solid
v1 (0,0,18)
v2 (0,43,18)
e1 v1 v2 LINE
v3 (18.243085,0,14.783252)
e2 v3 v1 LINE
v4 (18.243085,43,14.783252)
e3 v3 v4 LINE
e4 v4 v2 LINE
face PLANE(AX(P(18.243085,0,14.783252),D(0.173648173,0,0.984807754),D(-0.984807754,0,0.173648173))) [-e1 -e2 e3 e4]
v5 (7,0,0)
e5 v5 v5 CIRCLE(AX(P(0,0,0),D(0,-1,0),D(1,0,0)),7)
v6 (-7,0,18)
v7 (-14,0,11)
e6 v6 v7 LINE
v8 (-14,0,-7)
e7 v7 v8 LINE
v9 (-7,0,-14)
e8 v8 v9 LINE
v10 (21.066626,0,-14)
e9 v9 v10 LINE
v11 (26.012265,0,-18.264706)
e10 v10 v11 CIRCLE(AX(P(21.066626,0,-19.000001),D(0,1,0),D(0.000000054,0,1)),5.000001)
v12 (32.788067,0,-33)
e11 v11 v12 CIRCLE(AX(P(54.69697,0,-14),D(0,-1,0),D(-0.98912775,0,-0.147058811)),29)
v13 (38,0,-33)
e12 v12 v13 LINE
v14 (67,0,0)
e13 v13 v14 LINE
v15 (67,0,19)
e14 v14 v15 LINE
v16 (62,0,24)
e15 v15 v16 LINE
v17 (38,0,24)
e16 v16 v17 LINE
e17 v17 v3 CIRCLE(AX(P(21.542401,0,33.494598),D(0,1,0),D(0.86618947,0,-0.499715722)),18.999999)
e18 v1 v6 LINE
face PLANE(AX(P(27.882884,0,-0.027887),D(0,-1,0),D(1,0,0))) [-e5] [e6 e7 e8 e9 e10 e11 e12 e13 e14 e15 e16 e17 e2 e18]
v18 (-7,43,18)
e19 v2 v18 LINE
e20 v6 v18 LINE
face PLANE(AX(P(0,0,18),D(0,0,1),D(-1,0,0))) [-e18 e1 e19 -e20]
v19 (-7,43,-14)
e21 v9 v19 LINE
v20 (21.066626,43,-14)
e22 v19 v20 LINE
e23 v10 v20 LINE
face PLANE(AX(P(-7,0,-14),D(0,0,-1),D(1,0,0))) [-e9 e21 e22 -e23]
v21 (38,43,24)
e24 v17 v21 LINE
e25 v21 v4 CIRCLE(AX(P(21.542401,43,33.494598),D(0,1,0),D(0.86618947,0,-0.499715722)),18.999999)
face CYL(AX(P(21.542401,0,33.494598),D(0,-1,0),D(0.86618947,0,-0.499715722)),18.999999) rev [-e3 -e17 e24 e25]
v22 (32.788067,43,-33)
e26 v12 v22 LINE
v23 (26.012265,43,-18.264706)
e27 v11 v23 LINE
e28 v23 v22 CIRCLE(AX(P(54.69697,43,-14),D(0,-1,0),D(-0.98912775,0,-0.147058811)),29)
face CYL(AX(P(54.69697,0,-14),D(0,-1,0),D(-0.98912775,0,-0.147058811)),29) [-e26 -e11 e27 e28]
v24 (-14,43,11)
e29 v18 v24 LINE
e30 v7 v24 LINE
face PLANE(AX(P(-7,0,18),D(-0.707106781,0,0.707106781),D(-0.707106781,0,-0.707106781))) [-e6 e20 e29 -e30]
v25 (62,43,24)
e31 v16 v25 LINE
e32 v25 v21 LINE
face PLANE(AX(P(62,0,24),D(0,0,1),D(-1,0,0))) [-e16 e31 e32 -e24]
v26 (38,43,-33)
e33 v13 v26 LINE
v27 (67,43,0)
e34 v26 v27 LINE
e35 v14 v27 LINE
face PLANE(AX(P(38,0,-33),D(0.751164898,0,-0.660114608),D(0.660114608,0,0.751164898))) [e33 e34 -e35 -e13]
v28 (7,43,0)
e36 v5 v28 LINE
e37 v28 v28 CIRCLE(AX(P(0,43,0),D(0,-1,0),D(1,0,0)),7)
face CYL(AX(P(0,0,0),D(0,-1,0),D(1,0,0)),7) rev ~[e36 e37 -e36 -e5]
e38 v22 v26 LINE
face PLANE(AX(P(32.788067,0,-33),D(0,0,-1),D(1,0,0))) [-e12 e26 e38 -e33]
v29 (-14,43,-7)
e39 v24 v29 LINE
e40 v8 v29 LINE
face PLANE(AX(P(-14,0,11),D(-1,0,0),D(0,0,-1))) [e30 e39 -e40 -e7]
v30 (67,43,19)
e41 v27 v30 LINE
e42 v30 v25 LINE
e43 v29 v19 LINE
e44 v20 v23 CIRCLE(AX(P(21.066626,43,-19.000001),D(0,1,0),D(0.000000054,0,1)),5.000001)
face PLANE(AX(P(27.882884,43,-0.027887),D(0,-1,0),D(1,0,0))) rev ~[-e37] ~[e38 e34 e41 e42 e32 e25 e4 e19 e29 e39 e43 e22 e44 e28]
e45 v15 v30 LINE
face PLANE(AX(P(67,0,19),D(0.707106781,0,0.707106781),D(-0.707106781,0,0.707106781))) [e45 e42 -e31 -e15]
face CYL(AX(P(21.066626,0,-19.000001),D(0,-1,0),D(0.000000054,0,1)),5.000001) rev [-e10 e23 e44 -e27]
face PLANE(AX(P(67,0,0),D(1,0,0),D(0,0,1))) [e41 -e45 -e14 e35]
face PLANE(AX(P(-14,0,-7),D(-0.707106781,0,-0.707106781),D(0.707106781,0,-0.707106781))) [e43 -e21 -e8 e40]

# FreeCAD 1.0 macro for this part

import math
import FreeCAD as App
import Part
import Sketcher
Q = App.Units.Quantity

doc = App.newDocument("Part")
body = doc.addObject("PartDesign::Body", "Body")

# Sketch on XZ plane
sketch1 = body.newObject("Sketcher::SketchObject", "Sketch")
sketch1.AttachmentSupport = (doc.getObject("XZ_Plane"), [""])
sketch1.MapMode = "FlatFace"
sketch1.addGeometry([
    Part.LineSegment(App.Vector(-14, 11, 0), App.Vector(-14, -7, 0)),  # 0
    Part.LineSegment(App.Vector(-14, -7, 0), App.Vector(-7, -14, 0)),  # 1
    Part.LineSegment(App.Vector(-7, -14, 0), App.Vector(21, -14, 0)),  # 2
    Part.ArcOfCircle(Part.Circle(App.Vector(21, -19, 0), App.Vector(0, 0, 1), 5), math.radians(8), math.radians(90)),  # 3
    Part.ArcOfCircle(Part.Circle(App.Vector(55, -14, 0), App.Vector(0, 0, 1), 29), math.radians(-172), math.radians(-139)),  # 4
    Part.LineSegment(App.Vector(33, -33, 0), App.Vector(38, -33, 0)),  # 5
    Part.LineSegment(App.Vector(38, -33, 0), App.Vector(67, 0, 0)),  # 6
    Part.LineSegment(App.Vector(67, 0, 0), App.Vector(67, 19, 0)),  # 7
    Part.LineSegment(App.Vector(67, 19, 0), App.Vector(62, 24, 0)),  # 8
    Part.LineSegment(App.Vector(62, 24, 0), App.Vector(38, 24, 0)),  # 9
    Part.ArcOfCircle(Part.Circle(App.Vector(22, 33, 0), App.Vector(0, 0, 1), 19), math.radians(-100), math.radians(-30)),  # 10
    Part.LineSegment(App.Vector(18, 15, 0), App.Vector(0, 18, 0)),  # 11
    Part.LineSegment(App.Vector(0, 18, 0), App.Vector(-7, 18, 0)),  # 12
    Part.LineSegment(App.Vector(-7, 18, 0), App.Vector(-14, 11, 0)),  # 13
    Part.Circle(App.Vector(0, 0, 0), App.Vector(0, 0, 1), 7),  # 14
], False)
sketch1.addConstraint([
    Sketcher.Constraint("Coincident", 0, 2, 1, 1),
    Sketcher.Constraint("Coincident", 1, 2, 2, 1),
    Sketcher.Constraint("Tangent", 2, 2, 3, 2),
    Sketcher.Constraint("Tangent", 3, 1, 4, 1),
    Sketcher.Constraint("Coincident", 4, 2, 5, 1),
    Sketcher.Constraint("Coincident", 5, 2, 6, 1),
    Sketcher.Constraint("Coincident", 6, 2, 7, 1),
    Sketcher.Constraint("Coincident", 7, 2, 8, 1),
    Sketcher.Constraint("Coincident", 8, 2, 9, 1),
    Sketcher.Constraint("Coincident", 9, 2, 10, 2),
    Sketcher.Constraint("Tangent", 10, 1, 11, 1),
    Sketcher.Constraint("Coincident", 11, 2, 12, 1),
    Sketcher.Constraint("Coincident", 12, 2, 13, 1),
    Sketcher.Constraint("Coincident", 13, 2, 0, 1),
    Sketcher.Constraint("Vertical", 0),
    Sketcher.Constraint("Horizontal", 2),
    Sketcher.Constraint("Horizontal", 5),
    Sketcher.Constraint("Vertical", 7),
    Sketcher.Constraint("Horizontal", 9),
    Sketcher.Constraint("Horizontal", 12),
    Sketcher.Constraint("Coincident", 14, 3, -1, 1),
    Sketcher.Constraint("PointOnObject", 6, 2, -1),
    Sketcher.Constraint("PointOnObject", 11, 2, -2),
    Sketcher.Constraint("Parallel", 1, 8),
    Sketcher.Constraint("Perpendicular", 8, 13),
    Sketcher.Constraint("Horizontal", 4, 3, 1, 2),
    Sketcher.Constraint("Vertical", 5, 2, 9, 2),
    Sketcher.Constraint("Vertical", 1, 2, 12, 2),
    Sketcher.Constraint("Equal", 1, 13),
    Sketcher.Constraint("Diameter", 14, 14.0),
    Sketcher.Constraint("Radius", 3, 5.000001),
    Sketcher.Constraint("Radius", 4, 29.0),
    Sketcher.Constraint("Radius", 10, 18.999999),
    Sketcher.Constraint("DistanceX", 9, 2, 9, 1, 24.0),
    Sketcher.Constraint("DistanceX", 12, 2, 12, 1, 7.0),
    Sketcher.Constraint("DistanceY", 0, 2, 0, 1, 18.0),
    Sketcher.Constraint("DistanceY", 7, 1, 7, 2, 19.0),
    Sketcher.Constraint("Angle", 11, Q("170 deg")),
    Sketcher.Constraint("DistanceY", 3, 3, -1, 1, 19.000001),
    Sketcher.Constraint("DistanceX", 0, 2, -1, 1, 14.0),
    Sketcher.Constraint("DistanceY", 4, 2, -1, 1, 33.0),
    Sketcher.Constraint("DistanceX", -1, 1, 5, 2, 38.0),
    Sketcher.Constraint("DistanceX", -1, 1, 6, 2, 67.0),
    Sketcher.Constraint("DistanceX", 2, 1, 2, 2, 28.066626),
])
pad1 = body.newObject("PartDesign::Pad", "Pad")
pad1.Profile = sketch1
pad1.Length = 43
pad1.Reversed = True

doc.recompute()
